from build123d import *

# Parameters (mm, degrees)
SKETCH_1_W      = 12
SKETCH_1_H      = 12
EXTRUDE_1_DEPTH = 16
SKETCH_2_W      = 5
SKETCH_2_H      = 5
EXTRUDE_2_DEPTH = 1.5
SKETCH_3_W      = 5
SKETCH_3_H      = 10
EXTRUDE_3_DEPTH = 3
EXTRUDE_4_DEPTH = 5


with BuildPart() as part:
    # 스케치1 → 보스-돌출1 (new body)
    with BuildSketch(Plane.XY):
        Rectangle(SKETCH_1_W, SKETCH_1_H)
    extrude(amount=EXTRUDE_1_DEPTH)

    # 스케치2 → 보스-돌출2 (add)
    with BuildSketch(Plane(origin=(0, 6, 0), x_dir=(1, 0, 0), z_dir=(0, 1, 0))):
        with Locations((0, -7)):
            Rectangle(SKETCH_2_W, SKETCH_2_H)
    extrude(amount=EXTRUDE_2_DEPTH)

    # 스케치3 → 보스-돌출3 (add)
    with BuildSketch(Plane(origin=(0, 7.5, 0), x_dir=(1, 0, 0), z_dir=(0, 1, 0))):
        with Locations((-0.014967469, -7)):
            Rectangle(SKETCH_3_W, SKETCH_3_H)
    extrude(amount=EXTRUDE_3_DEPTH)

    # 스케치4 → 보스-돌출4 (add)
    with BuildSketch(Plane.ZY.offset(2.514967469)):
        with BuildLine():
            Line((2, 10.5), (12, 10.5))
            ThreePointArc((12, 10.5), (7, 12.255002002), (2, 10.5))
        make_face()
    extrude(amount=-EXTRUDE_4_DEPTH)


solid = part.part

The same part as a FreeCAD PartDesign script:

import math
import FreeCAD as App
import Part
import Sketcher
Q = App.Units.Quantity

doc = App.newDocument("Part")
body = doc.addObject("PartDesign::Body", "Body")

# Sketch on XY plane
sketch1 = body.newObject("Sketcher::SketchObject", "Sketch")
sketch1.AttachmentSupport = (doc.getObject("XY_Plane"), [""])
sketch1.MapMode = "FlatFace"
sketch1.addGeometry(Part.LineSegment(App.Vector(-6, 6, 0), App.Vector(-6, -6, 0)), False)
sketch1.addGeometry(Part.LineSegment(App.Vector(-6, -6, 0), App.Vector(6, -6, 0)), False)
sketch1.addGeometry(Part.LineSegment(App.Vector(6, -6, 0), App.Vector(6, 6, 0)), False)
sketch1.addGeometry(Part.LineSegment(App.Vector(6, 6, 0), App.Vector(-6, 6, 0)), False)
sketch1.addConstraint(Sketcher.Constraint("Coincident", 0, 2, 1, 1))
sketch1.addConstraint(Sketcher.Constraint("Coincident", 1, 2, 2, 1))
sketch1.addConstraint(Sketcher.Constraint("Coincident", 2, 2, 3, 1))
sketch1.addConstraint(Sketcher.Constraint("Coincident", 3, 2, 0, 1))
sketch1.addConstraint(Sketcher.Constraint("Vertical", 0))
sketch1.addConstraint(Sketcher.Constraint("Horizontal", 1))
sketch1.addConstraint(Sketcher.Constraint("Vertical", 2))
sketch1.addConstraint(Sketcher.Constraint("Horizontal", 3))
sketch1.addConstraint(Sketcher.Constraint("Symmetric", 0, 2, 2, 2, -1, 1))
sketch1.addConstraint(Sketcher.Constraint("Equal", 3, 0))
sketch1.addConstraint(Sketcher.Constraint("DistanceX", 1, 1, 1, 2, Q("12 mm")))
pad1 = body.newObject("PartDesign::Pad", "Pad")
pad1.Profile = sketch1
pad1.Length = 16

# Sketch on XZ plane
sketch2 = body.newObject("Sketcher::SketchObject", "Sketch001")
sketch2.AttachmentSupport = (doc.getObject("XZ_Plane"), [""])
sketch2.MapMode = "FlatFace"
sketch2.AttachmentOffset = App.Placement(App.Vector(0, 0, -6), App.Rotation())
sketch2.addGeometry(Part.LineSegment(App.Vector(-2.5, 4.5, 0), App.Vector(-2.5, 9.5, 0)), False)
sketch2.addGeometry(Part.LineSegment(App.Vector(-2.5, 9.5, 0), App.Vector(2.5, 9.5, 0)), False)
sketch2.addGeometry(Part.LineSegment(App.Vector(2.5, 9.5, 0), App.Vector(2.5, 4.5, 0)), False)
sketch2.addGeometry(Part.LineSegment(App.Vector(2.5, 4.5, 0), App.Vector(-2.5, 4.5, 0)), False)
sketch2.addConstraint(Sketcher.Constraint("Coincident", 0, 2, 1, 1))
sketch2.addConstraint(Sketcher.Constraint("Coincident", 1, 2, 2, 1))
sketch2.addConstraint(Sketcher.Constraint("Coincident", 2, 2, 3, 1))
sketch2.addConstraint(Sketcher.Constraint("Coincident", 3, 2, 0, 1))
sketch2.addConstraint(Sketcher.Constraint("Vertical", 0))
sketch2.addConstraint(Sketcher.Constraint("Horizontal", 1))
sketch2.addConstraint(Sketcher.Constraint("Vertical", 2))
sketch2.addConstraint(Sketcher.Constraint("Horizontal", 3))
sketch2.addConstraint(Sketcher.Constraint("Equal", 3, 0))
sketch2.addConstraint(Sketcher.Constraint("DistanceX", 1, 1, 1, 2, Q("5 mm")))
sketch2.addConstraint(Sketcher.Constraint("DistanceX", 0, 2, -1, 1, Q("2.5 mm")))
sketch2.addConstraint(Sketcher.Constraint("DistanceY", -1, 1, 0, 2, Q("9.5 mm")))
pad2 = body.newObject("PartDesign::Pad", "Pad001")
pad2.Profile = sketch2
pad2.Length = 1.5
pad2.Reversed = True

# Sketch on XZ plane
sketch3 = body.newObject("Sketcher::SketchObject", "Sketch002")
sketch3.AttachmentSupport = (doc.getObject("XZ_Plane"), [""])
sketch3.MapMode = "FlatFace"
sketch3.AttachmentOffset = App.Placement(App.Vector(0, 0, -7.5), App.Rotation())
sketch3.addGeometry(Part.LineSegment(App.Vector(-2.514967, 2, 0), App.Vector(-2.514967, 12, 0)), False)
sketch3.addGeometry(Part.LineSegment(App.Vector(-2.514967, 12, 0), App.Vector(2.485033, 12, 0)), False)
sketch3.addGeometry(Part.LineSegment(App.Vector(2.485033, 12, 0), App.Vector(2.485033, 2, 0)), False)
sketch3.addGeometry(Part.LineSegment(App.Vector(2.485033, 2, 0), App.Vector(-2.514967, 2, 0)), False)
sketch3.addConstraint(Sketcher.Constraint("Coincident", 0, 2, 1, 1))
sketch3.addConstraint(Sketcher.Constraint("Coincident", 1, 2, 2, 1))
sketch3.addConstraint(Sketcher.Constraint("Coincident", 2, 2, 3, 1))
sketch3.addConstraint(Sketcher.Constraint("Coincident", 3, 2, 0, 1))
sketch3.addConstraint(Sketcher.Constraint("Vertical", 0))
sketch3.addConstraint(Sketcher.Constraint("Horizontal", 1))
sketch3.addConstraint(Sketcher.Constraint("Vertical", 2))
sketch3.addConstraint(Sketcher.Constraint("Horizontal", 3))
sketch3.addConstraint(Sketcher.Constraint("DistanceX", 1, 1, 1, 2, Q("5 mm")))
sketch3.addConstraint(Sketcher.Constraint("DistanceY", 0, 1, 0, 2, Q("10 mm")))
sketch3.addConstraint(Sketcher.Constraint("DistanceY", -1, 1, 0, 2, Q("12 mm")))
sketch3.addConstraint(Sketcher.Constraint("DistanceX", 0, 2, -1, 1, Q("2.514967 mm")))
pad3 = body.newObject("PartDesign::Pad", "Pad002")
pad3.Profile = sketch3
pad3.Length = 3
pad3.Reversed = True

# Sketch on YZ plane
sketch4 = body.newObject("Sketcher::SketchObject", "Sketch003")
sketch4.AttachmentSupport = (doc.getObject("YZ_Plane"), [""])
sketch4.MapMode = "FlatFace"
sketch4.AttachmentOffset = App.Placement(App.Vector(0, 0, -2.514967), App.Rotation())
sketch4.addGeometry(Part.LineSegment(App.Vector(10.5, 2, 0), App.Vector(10.5, 12, 0)), False)
sketch4.addGeometry(Part.ArcOfCircle(Part.Circle(App.Vector(4.255002, 7, 0), App.Vector(0, 0, 1), 8), math.radians(-38.682187), math.radians(38.682187)), False)
sketch4.addConstraint(Sketcher.Constraint("Coincident", 0, 1, 1, 1))
sketch4.addConstraint(Sketcher.Constraint("Coincident", 1, 2, 0, 2))
sketch4.addConstraint(Sketcher.Constraint("Vertical", 0))
sketch4.addConstraint(Sketcher.Constraint("Radius", 1, Q("8 mm")))
sketch4.addConstraint(Sketcher.Constraint("DistanceY", 0, 1, 0, 2, Q("10 mm")))
sketch4.addConstraint(Sketcher.Constraint("DistanceY", -1, 1, 1, 3, Q("7 mm")))
sketch4.addConstraint(Sketcher.Constraint("DistanceX", -1, 1, 0, 1, Q("10.5 mm")))
pad4 = body.newObject("PartDesign::Pad", "Pad003")
pad4.Profile = sketch4
pad4.Length = 5

doc.recompute()
